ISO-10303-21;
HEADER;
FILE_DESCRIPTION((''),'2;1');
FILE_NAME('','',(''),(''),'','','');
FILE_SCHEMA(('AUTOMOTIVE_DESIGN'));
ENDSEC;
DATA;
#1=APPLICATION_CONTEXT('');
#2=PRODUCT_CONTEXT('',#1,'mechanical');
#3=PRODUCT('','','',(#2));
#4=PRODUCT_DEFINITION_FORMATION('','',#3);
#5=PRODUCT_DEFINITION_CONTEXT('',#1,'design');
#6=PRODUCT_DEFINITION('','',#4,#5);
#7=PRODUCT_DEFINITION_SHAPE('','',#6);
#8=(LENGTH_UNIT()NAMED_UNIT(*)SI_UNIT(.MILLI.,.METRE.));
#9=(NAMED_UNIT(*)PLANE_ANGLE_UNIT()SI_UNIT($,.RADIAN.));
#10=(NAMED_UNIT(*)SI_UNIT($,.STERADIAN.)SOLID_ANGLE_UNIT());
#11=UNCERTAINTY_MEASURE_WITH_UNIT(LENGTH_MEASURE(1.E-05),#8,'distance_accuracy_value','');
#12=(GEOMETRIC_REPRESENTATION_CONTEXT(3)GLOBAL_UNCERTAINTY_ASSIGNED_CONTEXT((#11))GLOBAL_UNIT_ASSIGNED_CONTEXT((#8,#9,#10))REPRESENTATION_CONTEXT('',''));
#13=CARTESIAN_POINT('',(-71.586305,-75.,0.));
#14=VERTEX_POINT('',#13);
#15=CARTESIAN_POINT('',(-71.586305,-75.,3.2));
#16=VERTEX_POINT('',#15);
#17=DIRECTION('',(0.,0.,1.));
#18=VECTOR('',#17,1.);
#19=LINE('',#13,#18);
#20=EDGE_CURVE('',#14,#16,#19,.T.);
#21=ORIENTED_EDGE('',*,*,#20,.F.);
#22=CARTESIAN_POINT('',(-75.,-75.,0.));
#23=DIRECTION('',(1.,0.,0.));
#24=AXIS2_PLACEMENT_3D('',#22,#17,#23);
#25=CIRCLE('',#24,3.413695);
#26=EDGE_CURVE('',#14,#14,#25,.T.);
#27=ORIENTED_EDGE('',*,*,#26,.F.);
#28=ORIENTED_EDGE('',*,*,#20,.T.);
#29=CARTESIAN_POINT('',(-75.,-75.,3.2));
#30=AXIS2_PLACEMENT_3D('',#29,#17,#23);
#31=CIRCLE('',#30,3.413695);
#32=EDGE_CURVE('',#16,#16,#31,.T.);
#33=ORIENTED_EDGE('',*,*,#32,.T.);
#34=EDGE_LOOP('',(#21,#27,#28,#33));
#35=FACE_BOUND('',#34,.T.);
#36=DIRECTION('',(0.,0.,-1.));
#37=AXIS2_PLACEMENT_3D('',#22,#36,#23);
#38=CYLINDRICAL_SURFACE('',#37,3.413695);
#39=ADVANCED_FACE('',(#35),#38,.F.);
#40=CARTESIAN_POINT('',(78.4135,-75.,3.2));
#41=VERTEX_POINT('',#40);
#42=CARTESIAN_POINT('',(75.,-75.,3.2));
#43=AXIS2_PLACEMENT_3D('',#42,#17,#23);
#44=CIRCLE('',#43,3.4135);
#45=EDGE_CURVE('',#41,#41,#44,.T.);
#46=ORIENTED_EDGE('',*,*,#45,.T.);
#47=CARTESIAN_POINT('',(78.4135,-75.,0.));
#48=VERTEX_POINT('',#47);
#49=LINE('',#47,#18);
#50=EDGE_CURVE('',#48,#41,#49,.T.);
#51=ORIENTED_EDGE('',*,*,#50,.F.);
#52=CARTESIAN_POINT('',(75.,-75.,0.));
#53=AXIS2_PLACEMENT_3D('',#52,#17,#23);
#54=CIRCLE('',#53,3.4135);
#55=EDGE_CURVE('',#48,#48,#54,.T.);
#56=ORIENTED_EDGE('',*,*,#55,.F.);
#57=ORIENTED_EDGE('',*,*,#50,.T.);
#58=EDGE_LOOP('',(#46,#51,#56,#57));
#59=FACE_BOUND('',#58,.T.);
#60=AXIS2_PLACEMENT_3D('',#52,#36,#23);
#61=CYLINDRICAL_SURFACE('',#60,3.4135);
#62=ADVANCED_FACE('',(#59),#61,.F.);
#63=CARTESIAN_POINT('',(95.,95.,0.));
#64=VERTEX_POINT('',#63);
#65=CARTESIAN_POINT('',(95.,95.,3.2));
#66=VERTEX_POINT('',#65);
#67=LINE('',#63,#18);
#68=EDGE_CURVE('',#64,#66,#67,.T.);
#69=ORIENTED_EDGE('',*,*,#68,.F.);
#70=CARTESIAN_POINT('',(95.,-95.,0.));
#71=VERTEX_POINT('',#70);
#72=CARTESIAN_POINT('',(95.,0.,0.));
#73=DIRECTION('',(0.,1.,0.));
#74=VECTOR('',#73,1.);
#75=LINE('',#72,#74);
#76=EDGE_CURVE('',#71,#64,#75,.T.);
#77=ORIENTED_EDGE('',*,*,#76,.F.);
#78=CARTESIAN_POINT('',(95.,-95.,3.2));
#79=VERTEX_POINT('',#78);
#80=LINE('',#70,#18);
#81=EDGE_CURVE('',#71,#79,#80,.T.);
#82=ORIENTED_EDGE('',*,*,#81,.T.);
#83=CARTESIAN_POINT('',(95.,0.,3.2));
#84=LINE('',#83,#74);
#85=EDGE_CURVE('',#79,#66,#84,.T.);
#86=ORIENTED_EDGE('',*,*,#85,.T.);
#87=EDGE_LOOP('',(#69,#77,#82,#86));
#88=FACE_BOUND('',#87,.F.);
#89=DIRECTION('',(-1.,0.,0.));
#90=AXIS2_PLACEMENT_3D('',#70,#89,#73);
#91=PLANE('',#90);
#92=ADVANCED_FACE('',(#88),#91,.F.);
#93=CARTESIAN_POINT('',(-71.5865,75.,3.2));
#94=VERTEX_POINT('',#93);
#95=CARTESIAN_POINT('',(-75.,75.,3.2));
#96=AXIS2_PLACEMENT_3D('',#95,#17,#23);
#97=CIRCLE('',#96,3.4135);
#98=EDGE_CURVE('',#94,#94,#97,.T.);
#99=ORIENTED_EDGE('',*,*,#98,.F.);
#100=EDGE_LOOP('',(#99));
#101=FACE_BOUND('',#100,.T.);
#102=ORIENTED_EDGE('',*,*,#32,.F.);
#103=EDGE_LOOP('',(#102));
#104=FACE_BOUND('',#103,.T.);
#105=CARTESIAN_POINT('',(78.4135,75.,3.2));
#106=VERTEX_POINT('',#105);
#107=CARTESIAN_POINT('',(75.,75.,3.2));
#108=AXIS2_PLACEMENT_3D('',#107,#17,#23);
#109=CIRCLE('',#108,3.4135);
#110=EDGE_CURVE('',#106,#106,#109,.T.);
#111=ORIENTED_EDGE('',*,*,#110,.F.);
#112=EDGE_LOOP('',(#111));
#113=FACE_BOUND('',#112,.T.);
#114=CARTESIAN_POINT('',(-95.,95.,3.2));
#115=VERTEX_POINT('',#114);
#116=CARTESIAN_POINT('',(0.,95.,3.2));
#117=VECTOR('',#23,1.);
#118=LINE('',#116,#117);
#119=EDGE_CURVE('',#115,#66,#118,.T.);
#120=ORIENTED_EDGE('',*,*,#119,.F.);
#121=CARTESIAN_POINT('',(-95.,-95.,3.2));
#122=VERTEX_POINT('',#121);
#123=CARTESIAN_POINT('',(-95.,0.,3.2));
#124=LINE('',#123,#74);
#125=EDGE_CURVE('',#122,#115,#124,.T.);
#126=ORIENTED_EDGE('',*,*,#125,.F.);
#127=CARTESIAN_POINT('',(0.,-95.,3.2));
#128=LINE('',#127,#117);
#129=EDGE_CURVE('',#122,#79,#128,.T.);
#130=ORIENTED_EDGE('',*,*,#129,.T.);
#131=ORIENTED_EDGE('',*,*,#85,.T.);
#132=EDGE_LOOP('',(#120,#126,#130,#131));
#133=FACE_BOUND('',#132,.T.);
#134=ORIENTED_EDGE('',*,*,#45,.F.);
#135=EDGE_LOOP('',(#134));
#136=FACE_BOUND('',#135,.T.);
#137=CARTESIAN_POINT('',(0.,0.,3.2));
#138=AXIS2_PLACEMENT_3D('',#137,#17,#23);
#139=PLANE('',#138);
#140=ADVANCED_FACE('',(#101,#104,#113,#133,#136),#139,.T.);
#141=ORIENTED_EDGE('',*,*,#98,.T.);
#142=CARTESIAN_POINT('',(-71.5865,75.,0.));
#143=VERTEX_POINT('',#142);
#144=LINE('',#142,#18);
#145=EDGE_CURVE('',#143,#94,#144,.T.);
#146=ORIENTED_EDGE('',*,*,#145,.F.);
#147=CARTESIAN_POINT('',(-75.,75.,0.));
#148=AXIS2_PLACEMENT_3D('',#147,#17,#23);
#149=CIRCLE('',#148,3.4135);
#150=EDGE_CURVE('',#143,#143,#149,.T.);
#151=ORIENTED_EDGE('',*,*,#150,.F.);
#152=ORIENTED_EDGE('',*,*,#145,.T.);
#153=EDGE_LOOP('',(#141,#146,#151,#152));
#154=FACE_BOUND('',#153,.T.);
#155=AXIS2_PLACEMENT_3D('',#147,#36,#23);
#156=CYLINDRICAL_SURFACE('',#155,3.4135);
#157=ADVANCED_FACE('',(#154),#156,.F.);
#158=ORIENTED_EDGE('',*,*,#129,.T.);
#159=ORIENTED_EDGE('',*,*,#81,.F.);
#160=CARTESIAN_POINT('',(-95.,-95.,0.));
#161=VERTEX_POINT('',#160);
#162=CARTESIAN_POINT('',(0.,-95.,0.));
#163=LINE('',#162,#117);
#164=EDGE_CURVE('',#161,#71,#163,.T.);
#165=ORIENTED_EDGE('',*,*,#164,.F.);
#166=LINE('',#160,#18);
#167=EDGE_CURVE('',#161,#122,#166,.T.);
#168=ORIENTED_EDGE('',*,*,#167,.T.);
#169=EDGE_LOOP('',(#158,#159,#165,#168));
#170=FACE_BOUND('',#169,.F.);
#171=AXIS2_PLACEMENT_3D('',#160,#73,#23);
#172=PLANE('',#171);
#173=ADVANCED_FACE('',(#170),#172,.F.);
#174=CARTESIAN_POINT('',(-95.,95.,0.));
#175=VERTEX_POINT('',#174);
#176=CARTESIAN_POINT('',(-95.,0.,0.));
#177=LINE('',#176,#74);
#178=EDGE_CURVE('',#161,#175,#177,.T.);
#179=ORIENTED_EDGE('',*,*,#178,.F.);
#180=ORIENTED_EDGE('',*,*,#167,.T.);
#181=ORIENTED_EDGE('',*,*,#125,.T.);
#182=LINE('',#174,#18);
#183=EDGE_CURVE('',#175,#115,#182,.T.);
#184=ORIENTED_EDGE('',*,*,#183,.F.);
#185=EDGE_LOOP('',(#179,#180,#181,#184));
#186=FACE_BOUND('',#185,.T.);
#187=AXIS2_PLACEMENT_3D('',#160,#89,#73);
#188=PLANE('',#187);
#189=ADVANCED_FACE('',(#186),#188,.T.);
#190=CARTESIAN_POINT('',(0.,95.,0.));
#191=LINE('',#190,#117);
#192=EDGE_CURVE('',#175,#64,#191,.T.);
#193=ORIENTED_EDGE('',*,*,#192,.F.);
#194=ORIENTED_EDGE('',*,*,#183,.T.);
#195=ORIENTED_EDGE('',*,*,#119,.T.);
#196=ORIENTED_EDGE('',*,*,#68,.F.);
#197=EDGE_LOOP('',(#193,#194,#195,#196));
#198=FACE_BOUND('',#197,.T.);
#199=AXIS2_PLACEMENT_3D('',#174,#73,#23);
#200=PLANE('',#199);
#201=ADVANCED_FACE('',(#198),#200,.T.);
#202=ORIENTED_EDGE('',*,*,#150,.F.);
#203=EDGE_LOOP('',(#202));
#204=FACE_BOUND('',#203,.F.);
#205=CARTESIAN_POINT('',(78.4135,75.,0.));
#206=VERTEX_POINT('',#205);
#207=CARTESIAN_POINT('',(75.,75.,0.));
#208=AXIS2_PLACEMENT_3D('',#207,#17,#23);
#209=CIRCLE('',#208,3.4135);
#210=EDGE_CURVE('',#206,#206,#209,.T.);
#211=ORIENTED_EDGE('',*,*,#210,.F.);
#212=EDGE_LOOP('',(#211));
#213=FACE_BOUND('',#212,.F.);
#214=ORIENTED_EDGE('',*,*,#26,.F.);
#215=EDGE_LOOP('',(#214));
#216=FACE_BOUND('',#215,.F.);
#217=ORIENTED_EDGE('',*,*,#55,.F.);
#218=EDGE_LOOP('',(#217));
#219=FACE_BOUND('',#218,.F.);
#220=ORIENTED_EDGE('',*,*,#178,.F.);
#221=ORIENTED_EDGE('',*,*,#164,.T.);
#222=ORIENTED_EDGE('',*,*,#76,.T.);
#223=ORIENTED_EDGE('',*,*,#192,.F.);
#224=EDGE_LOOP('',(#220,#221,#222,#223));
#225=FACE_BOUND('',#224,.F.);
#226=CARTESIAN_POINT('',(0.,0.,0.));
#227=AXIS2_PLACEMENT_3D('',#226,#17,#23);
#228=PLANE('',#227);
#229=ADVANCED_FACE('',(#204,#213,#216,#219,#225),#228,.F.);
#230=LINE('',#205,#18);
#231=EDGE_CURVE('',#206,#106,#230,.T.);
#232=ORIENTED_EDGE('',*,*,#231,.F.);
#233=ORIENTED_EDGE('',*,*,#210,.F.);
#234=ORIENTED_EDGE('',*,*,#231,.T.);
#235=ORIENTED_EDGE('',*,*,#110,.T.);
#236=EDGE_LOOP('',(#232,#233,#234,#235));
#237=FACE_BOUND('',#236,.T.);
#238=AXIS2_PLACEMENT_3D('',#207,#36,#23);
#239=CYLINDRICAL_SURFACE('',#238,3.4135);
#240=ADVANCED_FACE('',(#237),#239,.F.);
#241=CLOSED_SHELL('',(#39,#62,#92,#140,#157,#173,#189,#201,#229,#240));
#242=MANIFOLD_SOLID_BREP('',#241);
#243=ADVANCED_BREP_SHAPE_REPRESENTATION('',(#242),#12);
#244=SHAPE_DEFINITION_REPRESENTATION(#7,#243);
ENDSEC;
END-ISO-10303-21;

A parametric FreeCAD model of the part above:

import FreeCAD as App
import Part
import Sketcher


def add_polygon(sketch, points):
    """Adds a closed chain of lines whose ends are joined by coincident constraints."""
    first, n = sketch.GeometryCount, len(points)
    for a, b in zip(points, points[1:] + points[:1]):
        sketch.addGeometry(Part.LineSegment(App.Vector(*a, 0), App.Vector(*b, 0)), False)
    for i in range(n):
        sketch.addConstraint(Sketcher.Constraint("Coincident", first + i, 2, first + (i + 1) % n, 1))

doc = App.newDocument("Part")
params = doc.addObject("Spreadsheet::Sheet", "Params")
for row, (alias, value) in enumerate([
    ("sketch1_width", "190 mm"),
    ("pad1_length", "3.2 mm"),
], start=1):
    params.set(f"A{row}", alias)
    params.set(f"B{row}", "=" + value)
    params.setAlias(f"B{row}", alias)

body = doc.addObject("PartDesign::Body", "Body")

sketch1 = body.newObject("Sketcher::SketchObject", "Sketch")
sketch1.AttachmentSupport = (doc.getObject("XY_Plane"), [""])
sketch1.MapMode = "FlatFace"
add_polygon(sketch1, [(-95, 95), (-95, -95), (95, -95), (95, 95)])
sketch1.addGeometry(Part.Circle(App.Vector(-75, -75, 0), App.Vector(0, 0, 1), 3.413695), False)
sketch1.addGeometry(Part.Circle(App.Vector(75, -75, 0), App.Vector(0, 0, 1), 3.4135), False)
sketch1.addGeometry(Part.Circle(App.Vector(-75, 75, 0), App.Vector(0, 0, 1), 3.4135), False)
sketch1.addGeometry(Part.Circle(App.Vector(75, 75, 0), App.Vector(0, 0, 1), 3.4135), False)
sketch1.addConstraint([
    Sketcher.Constraint("Vertical", 0),
    Sketcher.Constraint("Horizontal", 1),
    Sketcher.Constraint("Vertical", 2),
    Sketcher.Constraint("Horizontal", 3),
    Sketcher.Constraint("Equal", 5, 6),
    Sketcher.Constraint("Equal", 6, 7),
    Sketcher.Constraint("Symmetric", 5, 3, 6, 3, -1, 1),
    Sketcher.Constraint("Symmetric", 4, 3, 7, 3, -1, 1),
    Sketcher.Constraint("Symmetric", 0, 2, 2, 2, -1, 1),
    Sketcher.Constraint("Symmetric", 4, 3, 5, 3, -2),
    Sketcher.Constraint("Equal", 3, 0),
    Sketcher.Constraint("DistanceX", 1, 1, 1, 2, 190.0),
    Sketcher.Constraint("Diameter", 5, 6.827),
    Sketcher.Constraint("DistanceX", 4, 3, -1, 1, 75.0),
    Sketcher.Constraint("DistanceY", 4, 3, -1, 1, 75.0),
    Sketcher.Constraint("Diameter", 4, 6.82739),
])
sketch1.setExpression("Constraints[15]", "Params.sketch1_width")
pad1 = body.newObject("PartDesign::Pad", "Pad")
pad1.Profile = sketch1
pad1.setExpression("Length", "Params.pad1_length")

doc.recompute()
